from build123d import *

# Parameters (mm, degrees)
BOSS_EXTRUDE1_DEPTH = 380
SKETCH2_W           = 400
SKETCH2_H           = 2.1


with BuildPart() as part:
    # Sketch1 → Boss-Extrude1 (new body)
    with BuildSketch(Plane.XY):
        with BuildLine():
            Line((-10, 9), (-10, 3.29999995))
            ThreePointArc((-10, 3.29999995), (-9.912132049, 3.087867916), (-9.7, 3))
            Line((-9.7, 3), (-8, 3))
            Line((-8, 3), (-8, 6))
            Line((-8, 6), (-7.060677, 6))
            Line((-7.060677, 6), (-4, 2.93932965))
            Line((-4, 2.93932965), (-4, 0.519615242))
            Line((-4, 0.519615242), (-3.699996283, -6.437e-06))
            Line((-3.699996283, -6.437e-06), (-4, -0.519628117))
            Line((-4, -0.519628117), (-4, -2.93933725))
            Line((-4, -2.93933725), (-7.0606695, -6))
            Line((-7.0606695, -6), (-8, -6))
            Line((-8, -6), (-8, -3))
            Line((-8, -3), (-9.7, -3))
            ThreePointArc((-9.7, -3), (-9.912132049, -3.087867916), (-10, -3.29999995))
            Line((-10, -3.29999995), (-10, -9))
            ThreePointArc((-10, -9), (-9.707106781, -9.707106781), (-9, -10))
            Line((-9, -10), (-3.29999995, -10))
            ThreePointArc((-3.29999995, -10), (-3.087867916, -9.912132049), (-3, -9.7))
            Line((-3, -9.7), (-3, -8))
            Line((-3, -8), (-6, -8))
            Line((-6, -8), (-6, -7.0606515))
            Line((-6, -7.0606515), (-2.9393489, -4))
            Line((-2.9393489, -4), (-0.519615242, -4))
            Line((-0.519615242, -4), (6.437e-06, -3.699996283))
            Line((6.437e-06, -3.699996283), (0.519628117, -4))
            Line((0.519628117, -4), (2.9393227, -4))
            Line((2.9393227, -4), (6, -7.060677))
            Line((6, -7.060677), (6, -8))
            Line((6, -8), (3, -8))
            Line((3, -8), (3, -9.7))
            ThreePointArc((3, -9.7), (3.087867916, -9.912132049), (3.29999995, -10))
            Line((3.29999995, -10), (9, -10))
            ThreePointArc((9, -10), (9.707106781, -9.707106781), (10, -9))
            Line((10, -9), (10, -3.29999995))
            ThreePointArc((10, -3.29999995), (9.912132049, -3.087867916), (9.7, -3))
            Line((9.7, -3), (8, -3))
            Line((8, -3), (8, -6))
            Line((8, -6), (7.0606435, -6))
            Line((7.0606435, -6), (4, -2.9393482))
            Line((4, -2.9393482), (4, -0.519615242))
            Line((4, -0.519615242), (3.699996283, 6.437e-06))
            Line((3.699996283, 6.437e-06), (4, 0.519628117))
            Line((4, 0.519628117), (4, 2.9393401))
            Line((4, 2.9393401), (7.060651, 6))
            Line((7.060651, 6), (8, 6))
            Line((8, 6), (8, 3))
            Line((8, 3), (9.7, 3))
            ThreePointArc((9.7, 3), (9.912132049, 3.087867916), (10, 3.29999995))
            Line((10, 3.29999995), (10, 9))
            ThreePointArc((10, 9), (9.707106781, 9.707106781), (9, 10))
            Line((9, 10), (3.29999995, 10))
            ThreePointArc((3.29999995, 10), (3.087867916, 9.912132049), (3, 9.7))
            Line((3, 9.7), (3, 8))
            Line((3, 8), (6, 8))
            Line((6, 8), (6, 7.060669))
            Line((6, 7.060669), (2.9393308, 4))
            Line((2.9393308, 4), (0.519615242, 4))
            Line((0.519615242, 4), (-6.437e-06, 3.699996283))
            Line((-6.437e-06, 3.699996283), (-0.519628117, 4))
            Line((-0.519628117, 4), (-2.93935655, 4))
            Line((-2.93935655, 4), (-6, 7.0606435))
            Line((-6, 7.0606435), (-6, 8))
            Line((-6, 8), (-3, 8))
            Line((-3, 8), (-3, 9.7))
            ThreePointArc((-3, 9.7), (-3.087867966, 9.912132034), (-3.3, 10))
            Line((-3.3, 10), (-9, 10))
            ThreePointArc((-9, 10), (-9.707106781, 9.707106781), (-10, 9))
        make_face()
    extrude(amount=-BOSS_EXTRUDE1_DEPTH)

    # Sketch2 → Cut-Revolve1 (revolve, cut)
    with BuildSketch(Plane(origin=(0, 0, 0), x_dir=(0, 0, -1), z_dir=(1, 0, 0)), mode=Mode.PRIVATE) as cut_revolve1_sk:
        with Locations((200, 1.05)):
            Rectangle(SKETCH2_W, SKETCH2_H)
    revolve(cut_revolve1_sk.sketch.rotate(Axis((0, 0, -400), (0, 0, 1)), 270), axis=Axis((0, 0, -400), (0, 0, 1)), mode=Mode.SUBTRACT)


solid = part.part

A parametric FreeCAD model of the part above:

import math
import FreeCAD as App
import Part
import Sketcher

V = App.Vector
Q = App.Units.Quantity


def add_polygon(sketch, points):
    """Adds a closed chain of lines whose ends are joined by coincident constraints."""
    first, n = sketch.GeometryCount, len(points)
    for a, b in zip(points, points[1:] + points[:1]):
        sketch.addGeometry(Part.LineSegment(App.Vector(*a, 0), App.Vector(*b, 0)), False)
    for i in range(n):
        sketch.addConstraint(Sketcher.Constraint("Coincident", first + i, 2, first + (i + 1) % n, 1))

doc = App.newDocument("Part")
params = doc.addObject("Spreadsheet::Sheet", "Params")
for row, (alias, value) in enumerate([
    ("sketch1_radius", "1 mm"),
    ("sketch1_radius2", "0.3 mm"),
    ("sketch1_width", "3 mm"),
    ("sketch1_width2", "1.7 mm"),
    ("sketch1_width3", "5.7 mm"),
    ("pad1_length", "380 mm"),
    ("sketch2_height", "400 mm"),
    ("sketch2_width", "2.1 mm"),
    ("groove_angle", "360 deg"),
], start=1):
    params.set(f"A{row}", alias)
    params.set(f"B{row}", "=" + value)
    params.setAlias(f"B{row}", alias)

body = doc.addObject("PartDesign::Body", "Body")

sketch1 = doc.addObject("Sketcher::SketchObject", "Sketch")
body.addObject(sketch1)
sketch1.AttachmentSupport = (doc.XY_Plane, [""])
sketch1.MapMode = "FlatFace"
sketch1.addGeometry([
    Part.LineSegment(V(-10, 9, 0), V(-10, 3.3, 0)),
    Part.ArcOfCircle(Part.Circle(V(-9.7, 3.3, 0), V(0, 0, 1), 0.3), math.radians(180), math.radians(270)),
    Part.LineSegment(V(-9.7, 3, 0), V(-8, 3, 0)),
    Part.LineSegment(V(-8, 3, 0), V(-8, 6, 0)),
    Part.LineSegment(V(-8, 6, 0), V(-7.06, 6, 0)),
    Part.LineSegment(V(-7.06, 6, 0), V(-4, 2.94, 0)),
    Part.LineSegment(V(-4, 2.94, 0), V(-4, 0.52, 0)),
    Part.LineSegment(V(-4, 0.52, 0), V(-3.7, 0, 0)),
    Part.LineSegment(V(-3.7, 0, 0), V(-4, -0.52, 0)),
    Part.LineSegment(V(-4, -0.52, 0), V(-4, -2.94, 0)),
    Part.LineSegment(V(-4, -2.94, 0), V(-7.06, -6, 0)),
    Part.LineSegment(V(-7.06, -6, 0), V(-8, -6, 0)),
    Part.LineSegment(V(-8, -6, 0), V(-8, -3, 0)),
    Part.LineSegment(V(-8, -3, 0), V(-9.7, -3, 0)),
    Part.ArcOfCircle(Part.Circle(V(-9.7, -3.3, 0), V(0, 0, 1), 0.3), math.radians(90), math.radians(180)),
    Part.LineSegment(V(-10, -3.3, 0), V(-10, -9, 0)),
    Part.ArcOfCircle(Part.Circle(V(-9, -9, 0), V(0, 0, 1), 1), math.radians(-180), math.radians(-90)),
    Part.LineSegment(V(-9, -10, 0), V(-3.3, -10, 0)),
    Part.ArcOfCircle(Part.Circle(V(-3.3, -9.7, 0), V(0, 0, 1), 0.3), math.radians(-90), math.radians(0)),
    Part.LineSegment(V(-3, -9.7, 0), V(-3, -8, 0)),
    Part.LineSegment(V(-3, -8, 0), V(-6, -8, 0)),
    Part.LineSegment(V(-6, -8, 0), V(-6, -7.06, 0)),
    Part.LineSegment(V(-6, -7.06, 0), V(-2.94, -4, 0)),
    Part.LineSegment(V(-2.94, -4, 0), V(-0.52, -4, 0)),
    Part.LineSegment(V(-0.52, -4, 0), V(0, -3.7, 0)),
    Part.LineSegment(V(0, -3.7, 0), V(0.52, -4, 0)),
    Part.LineSegment(V(0.52, -4, 0), V(2.94, -4, 0)),
    Part.LineSegment(V(2.94, -4, 0), V(6, -7.06, 0)),
    Part.LineSegment(V(6, -7.06, 0), V(6, -8, 0)),
    Part.LineSegment(V(6, -8, 0), V(3, -8, 0)),
    Part.LineSegment(V(3, -8, 0), V(3, -9.7, 0)),
    Part.ArcOfCircle(Part.Circle(V(3.3, -9.7, 0), V(0, 0, 1), 0.3), math.radians(180), math.radians(270)),
    Part.LineSegment(V(3.3, -10, 0), V(9, -10, 0)),
    Part.ArcOfCircle(Part.Circle(V(9, -9, 0), V(0, 0, 1), 1), math.radians(-90), math.radians(0)),
    Part.LineSegment(V(10, -9, 0), V(10, -3.3, 0)),
    Part.ArcOfCircle(Part.Circle(V(9.7, -3.3, 0), V(0, 0, 1), 0.3), math.radians(0), math.radians(90)),
    Part.LineSegment(V(9.7, -3, 0), V(8, -3, 0)),
    Part.LineSegment(V(8, -3, 0), V(8, -6, 0)),
    Part.LineSegment(V(8, -6, 0), V(7.06, -6, 0)),
    Part.LineSegment(V(7.06, -6, 0), V(4, -2.94, 0)),
    Part.LineSegment(V(4, -2.94, 0), V(4, -0.52, 0)),
    Part.LineSegment(V(4, -0.52, 0), V(3.7, 0, 0)),
    Part.LineSegment(V(3.7, 0, 0), V(4, 0.52, 0)),
    Part.LineSegment(V(4, 0.52, 0), V(4, 2.94, 0)),
    Part.LineSegment(V(4, 2.94, 0), V(7.06, 6, 0)),
    Part.LineSegment(V(7.06, 6, 0), V(8, 6, 0)),
    Part.LineSegment(V(8, 6, 0), V(8, 3, 0)),
    Part.LineSegment(V(8, 3, 0), V(9.7, 3, 0)),
    Part.ArcOfCircle(Part.Circle(V(9.7, 3.3, 0), V(0, 0, 1), 0.3), math.radians(-90), math.radians(0)),
    Part.LineSegment(V(10, 3.3, 0), V(10, 9, 0)),
    Part.ArcOfCircle(Part.Circle(V(9, 9, 0), V(0, 0, 1), 1), math.radians(0), math.radians(90)),
    Part.LineSegment(V(9, 10, 0), V(3.3, 10, 0)),
    Part.ArcOfCircle(Part.Circle(V(3.3, 9.7, 0), V(0, 0, 1), 0.3), math.radians(90), math.radians(180)),
    Part.LineSegment(V(3, 9.7, 0), V(3, 8, 0)),
    Part.LineSegment(V(3, 8, 0), V(6, 8, 0)),
    Part.LineSegment(V(6, 8, 0), V(6, 7.06, 0)),
    Part.LineSegment(V(6, 7.06, 0), V(2.94, 4, 0)),
    Part.LineSegment(V(2.94, 4, 0), V(0.52, 4, 0)),
    Part.LineSegment(V(0.52, 4, 0), V(0, 3.7, 0)),
    Part.LineSegment(V(0, 3.7, 0), V(-0.52, 4, 0)),
    Part.LineSegment(V(-0.52, 4, 0), V(-2.94, 4, 0)),
    Part.LineSegment(V(-2.94, 4, 0), V(-6, 7.06, 0)),
    Part.LineSegment(V(-6, 7.06, 0), V(-6, 8, 0)),
    Part.LineSegment(V(-6, 8, 0), V(-3, 8, 0)),
    Part.LineSegment(V(-3, 8, 0), V(-3, 9.7, 0)),
    Part.ArcOfCircle(Part.Circle(V(-3.3, 9.7, 0), V(0, 0, 1), 0.3), math.radians(0), math.radians(90)),
    Part.LineSegment(V(-3.3, 10, 0), V(-9, 10, 0)),
    Part.ArcOfCircle(Part.Circle(V(-9, 9, 0), V(0, 0, 1), 1), math.radians(90), math.radians(180)),
], False)
sketch1.addConstraint([
    Sketcher.Constraint("Tangent", 0, 2, 1, 1),
    Sketcher.Constraint("Tangent", 1, 2, 2, 1),
    Sketcher.Constraint("Coincident", 2, 2, 3, 1),
    Sketcher.Constraint("Coincident", 3, 2, 4, 1),
    Sketcher.Constraint("Coincident", 4, 2, 5, 1),
    Sketcher.Constraint("Coincident", 5, 2, 6, 1),
    Sketcher.Constraint("Coincident", 6, 2, 7, 1),
    Sketcher.Constraint("Coincident", 7, 2, 8, 1),
    Sketcher.Constraint("Coincident", 8, 2, 9, 1),
    Sketcher.Constraint("Coincident", 9, 2, 10, 1),
    Sketcher.Constraint("Coincident", 10, 2, 11, 1),
    Sketcher.Constraint("Coincident", 11, 2, 12, 1),
    Sketcher.Constraint("Coincident", 12, 2, 13, 1),
    Sketcher.Constraint("Tangent", 13, 2, 14, 1),
    Sketcher.Constraint("Tangent", 14, 2, 15, 1),
    Sketcher.Constraint("Tangent", 15, 2, 16, 1),
    Sketcher.Constraint("Tangent", 16, 2, 17, 1),
    Sketcher.Constraint("Tangent", 17, 2, 18, 1),
    Sketcher.Constraint("Tangent", 18, 2, 19, 1),
    Sketcher.Constraint("Coincident", 19, 2, 20, 1),
    Sketcher.Constraint("Coincident", 20, 2, 21, 1),
    Sketcher.Constraint("Coincident", 21, 2, 22, 1),
    Sketcher.Constraint("Coincident", 22, 2, 23, 1),
    Sketcher.Constraint("Coincident", 23, 2, 24, 1),
    Sketcher.Constraint("Coincident", 24, 2, 25, 1),
    Sketcher.Constraint("Coincident", 25, 2, 26, 1),
    Sketcher.Constraint("Coincident", 26, 2, 27, 1),
    Sketcher.Constraint("Coincident", 27, 2, 28, 1),
    Sketcher.Constraint("Coincident", 28, 2, 29, 1),
    Sketcher.Constraint("Coincident", 29, 2, 30, 1),
    Sketcher.Constraint("Tangent", 30, 2, 31, 1),
    Sketcher.Constraint("Tangent", 31, 2, 32, 1),
    Sketcher.Constraint("Tangent", 32, 2, 33, 1),
    Sketcher.Constraint("Tangent", 33, 2, 34, 1),
    Sketcher.Constraint("Tangent", 34, 2, 35, 1),
    Sketcher.Constraint("Tangent", 35, 2, 36, 1),
    Sketcher.Constraint("Coincident", 36, 2, 37, 1),
    Sketcher.Constraint("Coincident", 37, 2, 38, 1),
    Sketcher.Constraint("Coincident", 38, 2, 39, 1),
    Sketcher.Constraint("Coincident", 39, 2, 40, 1),
    Sketcher.Constraint("Coincident", 40, 2, 41, 1),
    Sketcher.Constraint("Coincident", 41, 2, 42, 1),
    Sketcher.Constraint("Coincident", 42, 2, 43, 1),
    Sketcher.Constraint("Coincident", 43, 2, 44, 1),
    Sketcher.Constraint("Coincident", 44, 2, 45, 1),
    Sketcher.Constraint("Coincident", 45, 2, 46, 1),
    Sketcher.Constraint("Coincident", 46, 2, 47, 1),
    Sketcher.Constraint("Tangent", 47, 2, 48, 1),
    Sketcher.Constraint("Tangent", 48, 2, 49, 1),
    Sketcher.Constraint("Tangent", 49, 2, 50, 1),
    Sketcher.Constraint("Tangent", 50, 2, 51, 1),
    Sketcher.Constraint("Tangent", 51, 2, 52, 1),
    Sketcher.Constraint("Tangent", 52, 2, 53, 1),
    Sketcher.Constraint("Coincident", 53, 2, 54, 1),
    Sketcher.Constraint("Coincident", 54, 2, 55, 1),
    Sketcher.Constraint("Coincident", 55, 2, 56, 1),
    Sketcher.Constraint("Coincident", 56, 2, 57, 1),
    Sketcher.Constraint("Coincident", 57, 2, 58, 1),
    Sketcher.Constraint("Coincident", 58, 2, 59, 1),
    Sketcher.Constraint("Coincident", 59, 2, 60, 1),
    Sketcher.Constraint("Coincident", 60, 2, 61, 1),
    Sketcher.Constraint("Coincident", 61, 2, 62, 1),
    Sketcher.Constraint("Coincident", 62, 2, 63, 1),
    Sketcher.Constraint("Coincident", 63, 2, 64, 1),
    Sketcher.Constraint("Tangent", 64, 2, 65, 1),
    Sketcher.Constraint("Tangent", 65, 2, 66, 1),
    Sketcher.Constraint("Tangent", 66, 2, 67, 1),
    Sketcher.Constraint("Tangent", 67, 2, 0, 1),
    Sketcher.Constraint("Vertical", 0),
    Sketcher.Constraint("Horizontal", 2),
    Sketcher.Constraint("Vertical", 3),
    Sketcher.Constraint("Horizontal", 4),
    Sketcher.Constraint("Vertical", 6),
    Sketcher.Constraint("Vertical", 9),
    Sketcher.Constraint("Horizontal", 11),
    Sketcher.Constraint("Vertical", 12),
    Sketcher.Constraint("Horizontal", 13),
    Sketcher.Constraint("Vertical", 15),
    Sketcher.Constraint("Horizontal", 17),
    Sketcher.Constraint("Vertical", 19),
    Sketcher.Constraint("Horizontal", 20),
    Sketcher.Constraint("Vertical", 21),
    Sketcher.Constraint("Horizontal", 23),
    Sketcher.Constraint("Horizontal", 26),
    Sketcher.Constraint("Vertical", 28),
    Sketcher.Constraint("Horizontal", 29),
    Sketcher.Constraint("Vertical", 30),
    Sketcher.Constraint("Horizontal", 32),
    Sketcher.Constraint("Vertical", 34),
    Sketcher.Constraint("Horizontal", 36),
    Sketcher.Constraint("Vertical", 37),
    Sketcher.Constraint("Horizontal", 38),
    Sketcher.Constraint("Vertical", 40),
    Sketcher.Constraint("Vertical", 43),
    Sketcher.Constraint("Horizontal", 45),
    Sketcher.Constraint("Vertical", 46),
    Sketcher.Constraint("Horizontal", 47),
    Sketcher.Constraint("Vertical", 49),
    Sketcher.Constraint("Horizontal", 51),
    Sketcher.Constraint("Vertical", 53),
    Sketcher.Constraint("Horizontal", 54),
    Sketcher.Constraint("Vertical", 55),
    Sketcher.Constraint("Horizontal", 57),
    Sketcher.Constraint("Horizontal", 60),
    Sketcher.Constraint("Vertical", 62),
    Sketcher.Constraint("Horizontal", 63),
    Sketcher.Constraint("Vertical", 64),
    Sketcher.Constraint("Horizontal", 66),
    Sketcher.Constraint("Equal", 1, 14),
    Sketcher.Constraint("Equal", 14, 18),
    Sketcher.Constraint("Equal", 18, 31),
    Sketcher.Constraint("Equal", 16, 33),
    Sketcher.Constraint("Equal", 31, 35),
    Sketcher.Constraint("Equal", 35, 48),
    Sketcher.Constraint("Equal", 33, 50),
    Sketcher.Constraint("Equal", 48, 52),
    Sketcher.Constraint("Equal", 52, 65),
    Sketcher.Constraint("Equal", 50, 67),
    Sketcher.Constraint("Symmetric", 1, 3, 35, 3, -1, 1),
    Sketcher.Constraint("Symmetric", 14, 3, 48, 3, -1, 1),
    Sketcher.Constraint("Symmetric", 18, 3, 52, 3, -1, 1),
    Sketcher.Constraint("Symmetric", 31, 3, 65, 3, -1, 1),
    Sketcher.Constraint("Symmetric", 3, 2, 37, 2, -1, 1),
    Sketcher.Constraint("Symmetric", 6, 2, 40, 2, -1, 1),
    Sketcher.Constraint("Symmetric", 7, 2, 41, 2, -1, 1),
    Sketcher.Constraint("Symmetric", 8, 2, 42, 2, -1, 1),
    Sketcher.Constraint("Symmetric", 11, 2, 45, 2, -1, 1),
    Sketcher.Constraint("Symmetric", 20, 2, 54, 2, -1, 1),
    Sketcher.Constraint("Symmetric", 23, 2, 57, 2, -1, 1),
    Sketcher.Constraint("Symmetric", 24, 2, 58, 2, -1, 1),
    Sketcher.Constraint("Symmetric", 25, 2, 59, 2, -1, 1),
    Sketcher.Constraint("Symmetric", 28, 2, 62, 2, -1, 1),
    Sketcher.Constraint("Symmetric", 18, 3, 31, 3, -2),
    Sketcher.Constraint("Symmetric", 14, 3, 35, 3, -2),
    Sketcher.Constraint("Symmetric", 20, 2, 28, 2, -2),
    Sketcher.Constraint("Symmetric", 11, 2, 37, 2, -2),
    Sketcher.Constraint("Symmetric", 5, 2, 9, 2, -1),
    Sketcher.Constraint("Symmetric", 26, 2, 56, 2, -1),
    Sketcher.Constraint("Parallel", 10, 22),
    Sketcher.Constraint("Perpendicular", 7, 24),
    Sketcher.Constraint("Perpendicular", 8, 25),
    Sketcher.Constraint("Perpendicular", 22, 27),
    Sketcher.Constraint("Parallel", 27, 39),
    Sketcher.Constraint("Perpendicular", 27, 44),
    Sketcher.Constraint("Parallel", 44, 56),
    Sketcher.Constraint("Perpendicular", 56, 61),
    Sketcher.Constraint("Equal", 66, 0),
    Sketcher.Constraint("Equal", 63, 3),
    Sketcher.Constraint("Equal", 57, 6),
    Sketcher.Constraint("Equal", 47, 19),
    Sketcher.Constraint("Equal", 45, 21),
    Sketcher.Constraint("Equal", 4, 28),
    Sketcher.Constraint("Equal", 23, 40),
    Sketcher.Constraint("Equal", 11, 55),
    Sketcher.Constraint("Equal", 38, 62),
    Sketcher.Constraint("Equal", 7, 8),
    Sketcher.Constraint("Equal", 8, 24),
    Sketcher.Constraint("Radius", 16, Q("1 mm")),
    Sketcher.Constraint("Radius", 1, Q("0.3 mm")),
    Sketcher.Constraint("DistanceX", 20, 2, 20, 1, Q("3 mm")),
    Sketcher.Constraint("Angle", 7, Q("-60 deg")),
    Sketcher.Constraint("Angle", 22, Q("45.000004 deg")),
    Sketcher.Constraint("DistanceX", 2, 1, 2, 2, Q("1.7 mm")),
    Sketcher.Constraint("DistanceX", 17, 1, 17, 2, Q("5.7 mm")),
    Sketcher.Constraint("DistanceX", 16, 3, -1, 1, Q("9 mm")),
    Sketcher.Constraint("DistanceY", 16, 3, -1, 1, Q("9 mm")),
    Sketcher.Constraint("DistanceX", 5, 2, -1, 1, Q("4 mm")),
    Sketcher.Constraint("DistanceY", 22, 2, -1, 1, Q("4 mm")),
    Sketcher.Constraint("DistanceX", 11, 2, 11, 1, Q("0.93933 mm")),
    Sketcher.Constraint("DistanceX", 45, 1, 45, 2, Q("0.939349 mm")),
    Sketcher.Constraint("DistanceX", 60, 2, 60, 1, Q("2.419728 mm")),
    Sketcher.Constraint("DistanceX", 23, 1, 23, 2, Q("2.419734 mm")),
])
sketch1.setExpression("Constraints[157]", "Params.sketch1_radius")
sketch1.setExpression("Constraints[158]", "Params.sketch1_radius2")
sketch1.setExpression("Constraints[159]", "Params.sketch1_width")
sketch1.setExpression("Constraints[162]", "Params.sketch1_width2")
sketch1.setExpression("Constraints[163]", "Params.sketch1_width3")
pad1 = doc.addObject("PartDesign::Pad", "Pad")
body.addObject(pad1)
pad1.Profile = sketch1
pad1.setExpression("Length", "Params.pad1_length")
pad1.Reversed = True

sketch2 = doc.addObject("Sketcher::SketchObject", "Sketch001")
body.addObject(sketch2)
sketch2.AttachmentSupport = (doc.YZ_Plane, [""])
sketch2.MapMode = "FlatFace"
add_polygon(sketch2, [(2.1, 0), (0, 0), (0, -400), (2.1, -400)])
sketch2.addConstraint([
    Sketcher.Constraint("Horizontal", 0),
    Sketcher.Constraint("Vertical", 1),
    Sketcher.Constraint("Horizontal", 2),
    Sketcher.Constraint("Vertical", 3),
    Sketcher.Constraint("Coincident", 0, 2, -1, 1),
    Sketcher.Constraint("DistanceY", 1, 2, 1, 1, Q("400 mm")),
    Sketcher.Constraint("DistanceX", 0, 2, 0, 1, Q("2.1 mm")),
])
sketch2.setExpression("Constraints[9]", "Params.sketch2_height")
sketch2.setExpression("Constraints[10]", "Params.sketch2_width")
groove = doc.addObject("PartDesign::Groove", "Groove")
body.addObject(groove)
groove.Profile = sketch2
groove.ReferenceAxis = (sketch2, ["V_Axis"])
groove.setExpression("Angle", "Params.groove_angle")

doc.recompute()
